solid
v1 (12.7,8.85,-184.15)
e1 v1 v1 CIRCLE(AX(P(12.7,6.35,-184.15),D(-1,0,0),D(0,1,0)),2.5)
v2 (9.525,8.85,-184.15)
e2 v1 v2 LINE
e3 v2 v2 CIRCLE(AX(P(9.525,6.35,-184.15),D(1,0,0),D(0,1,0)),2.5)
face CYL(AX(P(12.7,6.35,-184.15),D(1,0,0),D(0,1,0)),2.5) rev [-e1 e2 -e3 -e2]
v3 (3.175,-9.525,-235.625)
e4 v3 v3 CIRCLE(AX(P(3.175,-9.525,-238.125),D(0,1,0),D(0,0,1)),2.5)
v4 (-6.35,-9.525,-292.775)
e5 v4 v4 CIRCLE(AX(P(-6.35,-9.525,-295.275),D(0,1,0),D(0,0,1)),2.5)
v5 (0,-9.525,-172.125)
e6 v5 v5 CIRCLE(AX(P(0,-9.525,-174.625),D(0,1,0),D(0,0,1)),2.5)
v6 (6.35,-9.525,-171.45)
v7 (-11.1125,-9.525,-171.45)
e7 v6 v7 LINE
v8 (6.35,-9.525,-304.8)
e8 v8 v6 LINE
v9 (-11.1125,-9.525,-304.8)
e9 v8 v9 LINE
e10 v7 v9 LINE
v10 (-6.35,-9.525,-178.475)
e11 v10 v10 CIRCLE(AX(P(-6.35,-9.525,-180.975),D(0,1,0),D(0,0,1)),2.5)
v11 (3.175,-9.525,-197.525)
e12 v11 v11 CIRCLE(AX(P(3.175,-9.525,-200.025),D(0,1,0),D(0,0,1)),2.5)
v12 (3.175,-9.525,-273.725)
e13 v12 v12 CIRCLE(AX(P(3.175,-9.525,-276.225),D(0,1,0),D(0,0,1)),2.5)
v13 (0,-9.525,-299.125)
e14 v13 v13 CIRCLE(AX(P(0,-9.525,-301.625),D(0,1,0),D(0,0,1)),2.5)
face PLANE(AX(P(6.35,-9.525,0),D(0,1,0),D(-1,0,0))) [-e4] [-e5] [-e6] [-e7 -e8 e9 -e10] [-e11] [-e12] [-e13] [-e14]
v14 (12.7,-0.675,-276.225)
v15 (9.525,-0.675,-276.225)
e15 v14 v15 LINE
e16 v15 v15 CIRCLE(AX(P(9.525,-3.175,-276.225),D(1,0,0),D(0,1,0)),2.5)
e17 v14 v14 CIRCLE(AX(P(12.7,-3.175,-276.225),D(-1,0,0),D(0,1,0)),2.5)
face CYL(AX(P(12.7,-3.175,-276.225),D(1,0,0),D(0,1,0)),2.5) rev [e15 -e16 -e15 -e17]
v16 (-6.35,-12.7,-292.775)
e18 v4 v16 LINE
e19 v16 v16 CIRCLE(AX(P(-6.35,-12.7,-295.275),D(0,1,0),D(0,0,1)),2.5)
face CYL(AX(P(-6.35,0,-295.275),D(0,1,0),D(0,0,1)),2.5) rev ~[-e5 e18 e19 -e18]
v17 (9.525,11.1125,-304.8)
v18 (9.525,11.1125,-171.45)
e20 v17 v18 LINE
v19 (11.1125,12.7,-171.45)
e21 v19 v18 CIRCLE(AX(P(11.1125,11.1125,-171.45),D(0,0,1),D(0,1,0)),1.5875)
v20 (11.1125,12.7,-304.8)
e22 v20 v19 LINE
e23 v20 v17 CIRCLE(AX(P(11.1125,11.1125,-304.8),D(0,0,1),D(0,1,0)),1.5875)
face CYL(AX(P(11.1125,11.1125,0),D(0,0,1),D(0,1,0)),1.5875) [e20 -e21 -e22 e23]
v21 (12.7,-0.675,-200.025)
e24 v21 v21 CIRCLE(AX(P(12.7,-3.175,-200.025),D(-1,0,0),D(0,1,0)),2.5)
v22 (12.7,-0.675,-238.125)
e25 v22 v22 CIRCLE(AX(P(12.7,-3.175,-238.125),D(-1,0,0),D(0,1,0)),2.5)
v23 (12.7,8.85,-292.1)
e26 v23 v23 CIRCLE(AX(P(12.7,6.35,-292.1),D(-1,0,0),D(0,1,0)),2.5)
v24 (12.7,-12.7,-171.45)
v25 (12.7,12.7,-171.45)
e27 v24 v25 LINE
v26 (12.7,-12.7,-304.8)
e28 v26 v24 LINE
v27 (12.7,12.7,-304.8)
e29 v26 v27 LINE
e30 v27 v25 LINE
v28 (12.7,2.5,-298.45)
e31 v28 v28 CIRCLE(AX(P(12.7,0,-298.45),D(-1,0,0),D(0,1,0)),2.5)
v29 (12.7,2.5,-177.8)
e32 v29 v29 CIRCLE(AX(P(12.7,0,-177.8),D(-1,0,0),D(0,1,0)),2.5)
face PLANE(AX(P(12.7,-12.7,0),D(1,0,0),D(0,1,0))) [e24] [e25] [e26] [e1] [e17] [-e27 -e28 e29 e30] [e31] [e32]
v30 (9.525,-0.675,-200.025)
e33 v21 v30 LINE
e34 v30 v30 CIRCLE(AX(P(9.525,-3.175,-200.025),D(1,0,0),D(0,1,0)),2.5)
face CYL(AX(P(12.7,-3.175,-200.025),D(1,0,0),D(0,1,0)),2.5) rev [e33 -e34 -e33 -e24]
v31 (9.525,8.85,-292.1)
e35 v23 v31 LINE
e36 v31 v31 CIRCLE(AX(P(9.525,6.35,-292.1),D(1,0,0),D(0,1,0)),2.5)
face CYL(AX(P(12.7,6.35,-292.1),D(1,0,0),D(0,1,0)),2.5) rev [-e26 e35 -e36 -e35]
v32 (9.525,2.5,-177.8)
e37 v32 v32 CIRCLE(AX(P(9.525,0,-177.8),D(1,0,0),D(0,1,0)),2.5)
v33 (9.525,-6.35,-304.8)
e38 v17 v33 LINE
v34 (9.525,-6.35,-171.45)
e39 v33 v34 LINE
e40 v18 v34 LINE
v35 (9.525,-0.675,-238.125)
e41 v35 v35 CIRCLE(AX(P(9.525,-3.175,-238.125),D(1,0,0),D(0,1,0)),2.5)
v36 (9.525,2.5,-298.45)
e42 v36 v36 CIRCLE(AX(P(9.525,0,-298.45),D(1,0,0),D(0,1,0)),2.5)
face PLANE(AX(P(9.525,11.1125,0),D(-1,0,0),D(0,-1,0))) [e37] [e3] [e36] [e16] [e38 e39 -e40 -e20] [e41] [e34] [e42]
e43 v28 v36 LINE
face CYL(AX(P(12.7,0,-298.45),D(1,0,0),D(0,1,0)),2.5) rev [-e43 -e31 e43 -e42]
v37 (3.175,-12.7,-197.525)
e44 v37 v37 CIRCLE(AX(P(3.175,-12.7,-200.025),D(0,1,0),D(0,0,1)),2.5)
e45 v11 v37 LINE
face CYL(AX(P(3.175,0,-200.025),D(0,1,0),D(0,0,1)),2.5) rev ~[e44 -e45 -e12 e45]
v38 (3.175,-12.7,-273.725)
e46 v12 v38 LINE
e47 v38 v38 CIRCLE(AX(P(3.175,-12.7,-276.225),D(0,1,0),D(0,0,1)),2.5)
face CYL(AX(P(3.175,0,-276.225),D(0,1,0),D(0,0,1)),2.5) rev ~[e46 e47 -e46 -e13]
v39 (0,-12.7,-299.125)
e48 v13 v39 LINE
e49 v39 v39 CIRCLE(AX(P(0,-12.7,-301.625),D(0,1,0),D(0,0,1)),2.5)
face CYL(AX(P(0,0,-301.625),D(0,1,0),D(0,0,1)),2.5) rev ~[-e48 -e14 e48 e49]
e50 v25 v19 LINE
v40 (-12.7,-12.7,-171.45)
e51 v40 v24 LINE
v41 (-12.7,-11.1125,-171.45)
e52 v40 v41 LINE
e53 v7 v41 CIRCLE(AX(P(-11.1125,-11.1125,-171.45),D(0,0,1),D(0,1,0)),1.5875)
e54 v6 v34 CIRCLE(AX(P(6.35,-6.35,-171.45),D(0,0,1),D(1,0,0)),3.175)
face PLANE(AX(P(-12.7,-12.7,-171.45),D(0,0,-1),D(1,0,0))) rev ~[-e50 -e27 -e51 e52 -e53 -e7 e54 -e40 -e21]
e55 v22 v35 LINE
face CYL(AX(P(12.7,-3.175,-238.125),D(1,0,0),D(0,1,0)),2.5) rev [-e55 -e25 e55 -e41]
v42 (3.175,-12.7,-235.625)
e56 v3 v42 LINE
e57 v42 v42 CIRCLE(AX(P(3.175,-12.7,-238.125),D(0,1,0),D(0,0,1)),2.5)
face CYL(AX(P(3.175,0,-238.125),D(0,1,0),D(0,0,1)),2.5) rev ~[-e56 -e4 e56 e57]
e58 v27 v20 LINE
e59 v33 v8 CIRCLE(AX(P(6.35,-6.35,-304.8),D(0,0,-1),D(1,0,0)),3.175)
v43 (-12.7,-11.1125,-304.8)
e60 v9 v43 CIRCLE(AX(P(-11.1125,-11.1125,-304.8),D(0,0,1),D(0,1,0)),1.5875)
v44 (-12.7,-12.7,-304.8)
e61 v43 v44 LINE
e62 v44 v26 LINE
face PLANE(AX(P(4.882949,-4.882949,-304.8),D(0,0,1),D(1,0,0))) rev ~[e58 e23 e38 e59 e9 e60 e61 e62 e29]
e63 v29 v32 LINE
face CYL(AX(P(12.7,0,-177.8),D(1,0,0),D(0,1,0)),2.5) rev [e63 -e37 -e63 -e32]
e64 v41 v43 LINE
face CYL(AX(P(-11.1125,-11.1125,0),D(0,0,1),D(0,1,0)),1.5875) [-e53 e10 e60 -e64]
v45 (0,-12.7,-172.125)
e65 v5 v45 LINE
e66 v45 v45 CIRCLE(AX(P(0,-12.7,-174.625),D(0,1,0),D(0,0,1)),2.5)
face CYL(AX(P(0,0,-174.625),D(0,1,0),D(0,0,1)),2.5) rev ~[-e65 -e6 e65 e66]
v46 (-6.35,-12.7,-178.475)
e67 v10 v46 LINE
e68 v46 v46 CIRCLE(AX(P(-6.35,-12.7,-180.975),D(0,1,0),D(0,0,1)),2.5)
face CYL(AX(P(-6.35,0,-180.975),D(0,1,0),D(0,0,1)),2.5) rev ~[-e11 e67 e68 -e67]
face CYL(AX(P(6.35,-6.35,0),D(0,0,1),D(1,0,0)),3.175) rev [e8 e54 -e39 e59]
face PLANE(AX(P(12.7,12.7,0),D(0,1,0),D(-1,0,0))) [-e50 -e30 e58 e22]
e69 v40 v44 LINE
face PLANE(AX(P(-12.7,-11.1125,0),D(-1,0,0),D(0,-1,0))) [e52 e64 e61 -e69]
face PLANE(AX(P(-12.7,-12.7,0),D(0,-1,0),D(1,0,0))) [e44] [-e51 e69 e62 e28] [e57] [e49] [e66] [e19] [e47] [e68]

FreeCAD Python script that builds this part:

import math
import FreeCAD as App
import Part
import Sketcher

V = App.Vector
Q = App.Units.Quantity


def add_polygon(sketch, points):
    """Adds a closed chain of lines whose ends are joined by coincident constraints."""
    first, n = sketch.GeometryCount, len(points)
    for a, b in zip(points, points[1:] + points[:1]):
        sketch.addGeometry(Part.LineSegment(App.Vector(*a, 0), App.Vector(*b, 0)), False)
    for i in range(n):
        sketch.addConstraint(Sketcher.Constraint("Coincident", first + i, 2, first + (i + 1) % n, 1))

doc = App.newDocument("Part")
params = doc.addObject("Spreadsheet::Sheet", "Params")
for row, (alias, value) in enumerate([
    ("sketch1_width", "1 in"),
    ("sketch1_radius", "0.0625 in"),
    ("sketch1_radius2", "0.125 in"),
    ("pad1_length", "24 in"),
    ("sketch2_width", "1 in"),
    ("sketch2_height", "18.75 in"),
    ("pocket1_length", "10 in"),
    ("pocket2_length", "10 in"),
    ("pocket3_length", "10 in"),
], start=1):
    params.set(f"A{row}", alias)
    params.set(f"B{row}", "=" + value)
    params.setAlias(f"B{row}", alias)

body = doc.addObject("PartDesign::Body", "Body")

# Sketch on XY plane
sketch1 = doc.addObject("Sketcher::SketchObject", "Sketch")
body.addObject(sketch1)
sketch1.AttachmentSupport = (doc.XY_Plane, [""])
sketch1.MapMode = "FlatFace"
sketch1.addGeometry([
    Part.LineSegment(V(-12.7, -12.7, 0), V(12.7, -12.7, 0)),  # 0
    Part.LineSegment(V(12.7, -12.7, 0), V(12.7, 12.7, 0)),  # 1
    Part.LineSegment(V(12.7, 12.7, 0), V(11.1, 12.7, 0)),  # 2
    Part.ArcOfCircle(Part.Circle(V(11.1, 11.1, 0), V(0, 0, 1), 1.6), math.radians(90), math.radians(180)),  # 3
    Part.LineSegment(V(9.5, 11.1, 0), V(9.5, -6.3, 0)),  # 4
    Part.ArcOfCircle(Part.Circle(V(6.3, -6.3, 0), V(0, 0, 1), 3.2), math.radians(-90), math.radians(0)),  # 5
    Part.LineSegment(V(6.3, -9.5, 0), V(-11.1, -9.5, 0)),  # 6
    Part.ArcOfCircle(Part.Circle(V(-11.1, -11.1, 0), V(0, 0, 1), 1.6), math.radians(90), math.radians(180)),  # 7
    Part.LineSegment(V(-12.7, -11.1, 0), V(-12.7, -12.7, 0)),  # 8
], False)
sketch1.addConstraint([
    Sketcher.Constraint("Coincident", 0, 2, 1, 1),
    Sketcher.Constraint("Coincident", 1, 2, 2, 1),
    Sketcher.Constraint("Tangent", 2, 2, 3, 1),
    Sketcher.Constraint("Tangent", 3, 2, 4, 1),
    Sketcher.Constraint("Tangent", 4, 2, 5, 2),
    Sketcher.Constraint("Tangent", 5, 1, 6, 1),
    Sketcher.Constraint("Tangent", 6, 2, 7, 1),
    Sketcher.Constraint("Tangent", 7, 2, 8, 1),
    Sketcher.Constraint("Coincident", 8, 2, 0, 1),
    Sketcher.Constraint("Horizontal", 0),
    Sketcher.Constraint("Vertical", 1),
    Sketcher.Constraint("Horizontal", 2),
    Sketcher.Constraint("Vertical", 4),
    Sketcher.Constraint("Horizontal", 6),
    Sketcher.Constraint("Vertical", 8),
    Sketcher.Constraint("Equal", 3, 7),
    Sketcher.Constraint("Symmetric", 3, 3, 7, 3, -1, 1),
    Sketcher.Constraint("Symmetric", 1, 2, 8, 2, -1, 1),
    Sketcher.Constraint("Equal", 0, 1),
    Sketcher.Constraint("DistanceX", 0, 1, 0, 2, Q("1 in")),
    Sketcher.Constraint("Radius", 3, Q("0.0625 in")),
    Sketcher.Constraint("Radius", 5, Q("0.125 in")),
])
sketch1.setExpression("Constraints[19]", "Params.sketch1_width")
sketch1.setExpression("Constraints[20]", "Params.sketch1_radius")
sketch1.setExpression("Constraints[21]", "Params.sketch1_radius2")
pad1 = doc.addObject("PartDesign::Pad", "Pad")
body.addObject(pad1)
pad1.Profile = sketch1
pad1.setExpression("Length", "Params.pad1_length")
pad1.Midplane = True

# Sketch on XZ plane
sketch2 = doc.addObject("Sketcher::SketchObject", "Sketch001")
body.addObject(sketch2)
sketch2.AttachmentSupport = (doc.XZ_Plane, [""])
sketch2.MapMode = "FlatFace"
sketch2.AttachmentOffset = App.Placement(V(0, 0, 0.5 * 25.4), App.Rotation())
add_polygon(sketch2, [(-13, 305), (-13, -171), (13, -171), (13, 305)])  # lines 0-3
sketch2.addConstraint([
    Sketcher.Constraint("Vertical", 0),
    Sketcher.Constraint("Horizontal", 1),
    Sketcher.Constraint("Vertical", 2),
    Sketcher.Constraint("Horizontal", 3),
    Sketcher.Constraint("DistanceX", 1, 1, 1, 2, Q("1 in")),
    Sketcher.Constraint("DistanceY", -1, 1, 2, 2, Q("12 in")),
    Sketcher.Constraint("DistanceY", 0, 2, 0, 1, Q("18.75 in")),
    Sketcher.Constraint("DistanceX", 0, 2, -1, 1, Q("0.5 in")),
])
sketch2.setExpression("Constraints[8]", "Params.sketch2_width")
sketch2.setExpression("Constraints[10]", "Params.sketch2_height")
pocket1 = doc.addObject("PartDesign::Pocket", "Pocket")
body.addObject(pocket1)
pocket1.Profile = sketch2
pocket1.setExpression("Length", "Params.pocket1_length")

# Sketch on XZ plane
sketch3 = doc.addObject("Sketcher::SketchObject", "Sketch002")
body.addObject(sketch3)
sketch3.AttachmentSupport = (doc.XZ_Plane, [""])
sketch3.MapMode = "FlatFace"
sketch3.addGeometry([
    Part.Circle(V(-6.3, -295.3, 0), V(0, 0, 1), 2.5),  # 0
    Part.Circle(V(0, -301.6, 0), V(0, 0, 1), 2.5),  # 1
    Part.Circle(V(3.2, -276.2, 0), V(0, 0, 1), 2.5),  # 2
    Part.Circle(V(3.2, -238.1, 0), V(0, 0, 1), 2.5),  # 3
    Part.Circle(V(3.2, -200, 0), V(0, 0, 1), 2.5),  # 4
    Part.Circle(V(0, -174.6, 0), V(0, 0, 1), 2.5),  # 5
    Part.Circle(V(-6.3, -181, 0), V(0, 0, 1), 2.5),  # 6
], False)
sketch3.addConstraint([
    Sketcher.Constraint("Equal", 0, 1),
    Sketcher.Constraint("Equal", 1, 2),
    Sketcher.Constraint("Equal", 2, 3),
    Sketcher.Constraint("Equal", 3, 4),
    Sketcher.Constraint("Equal", 4, 5),
    Sketcher.Constraint("Equal", 5, 6),
    Sketcher.Constraint("PointOnObject", 1, 3, -2),
    Sketcher.Constraint("PointOnObject", 5, 3, -2),
    Sketcher.Constraint("Vertical", 2, 3, 3, 3),
    Sketcher.Constraint("Vertical", 3, 3, 4, 3),
    Sketcher.Constraint("Vertical", 0, 3, 6, 3),
    Sketcher.Constraint("DistanceY", 1, 3, 2, 3, Q("1 in")),
    Sketcher.Constraint("DistanceY", 2, 3, 4, 3, Q("3 in")),
    Sketcher.Constraint("DistanceY", 4, 3, 5, 3, Q("1 in")),
    Sketcher.Constraint("DistanceY", 2, 3, 3, 3, Q("1.5 in")),
    Sketcher.Constraint("DistanceY", 0, 3, 6, 3, Q("4.5 in")),
    Sketcher.Constraint("Diameter", 0, Q("5 mm")),
    Sketcher.Constraint("DistanceX", 0, 3, -1, 1, Q("0.25 in")),
    Sketcher.Constraint("DistanceY", 1, 3, 0, 3, Q("0.25 in")),
    Sketcher.Constraint("DistanceY", 0, 3, -1, 1, Q("11.625 in")),
    Sketcher.Constraint("DistanceX", -1, 1, 2, 3, Q("0.125 in")),
])
pocket2 = doc.addObject("PartDesign::Pocket", "Pocket001")
body.addObject(pocket2)
pocket2.Profile = sketch3
pocket2.setExpression("Length", "Params.pocket2_length")
pocket2.Reversed = True

# Sketch on YZ plane
sketch4 = doc.addObject("Sketcher::SketchObject", "Sketch003")
body.addObject(sketch4)
sketch4.AttachmentSupport = (doc.YZ_Plane, [""])
sketch4.MapMode = "FlatFace"
sketch4.AttachmentOffset = App.Placement(V(0, 0, 0.5 * 25.4), App.Rotation())
sketch4.addGeometry([
    Part.Circle(V(6.3, -184.2, 0), V(0, 0, 1), 2.5),  # 0
    Part.Circle(V(0, -177.8, 0), V(0, 0, 1), 2.5),  # 1
    Part.Circle(V(-3.2, -200, 0), V(0, 0, 1), 2.5),  # 2
    Part.Circle(V(-3.2, -238.1, 0), V(0, 0, 1), 2.5),  # 3
    Part.Circle(V(-3.2, -276.2, 0), V(0, 0, 1), 2.5),  # 4
    Part.Circle(V(0, -298.4, 0), V(0, 0, 1), 2.5),  # 5
    Part.Circle(V(6.3, -292.1, 0), V(0, 0, 1), 2.5),  # 6
], False)
sketch4.addConstraint([
    Sketcher.Constraint("Equal", 0, 1),
    Sketcher.Constraint("Equal", 1, 2),
    Sketcher.Constraint("Equal", 2, 3),
    Sketcher.Constraint("Equal", 3, 4),
    Sketcher.Constraint("Equal", 4, 5),
    Sketcher.Constraint("Equal", 5, 6),
    Sketcher.Constraint("PointOnObject", 1, 3, -2),
    Sketcher.Constraint("PointOnObject", 5, 3, -2),
    Sketcher.Constraint("Vertical", 2, 3, 3, 3),
    Sketcher.Constraint("Vertical", 3, 3, 4, 3),
    Sketcher.Constraint("Vertical", 0, 3, 6, 3),
    Sketcher.Constraint("DistanceY", 1, 3, -1, 1, Q("7 in")),
    Sketcher.Constraint("DistanceY", 4, 3, 2, 3, Q("3 in")),
    Sketcher.Constraint("DistanceY", 6, 3, -1, 1, Q("11.5 in")),
    Sketcher.Constraint("DistanceY", 3, 3, 2, 3, Q("1.5 in")),
    Sketcher.Constraint("DistanceY", 5, 3, 0, 3, Q("4.5 in")),
    Sketcher.Constraint("Diameter", 0, Q("5 mm")),
    Sketcher.Constraint("DistanceX", -1, 1, 0, 3, Q("0.25 in")),
    Sketcher.Constraint("DistanceY", 0, 3, -1, 1, Q("7.25 in")),
    Sketcher.Constraint("DistanceX", 2, 3, -1, 1, Q("0.125 in")),
    Sketcher.Constraint("DistanceY", 2, 3, -1, 1, Q("7.875 in")),
])
pocket3 = doc.addObject("PartDesign::Pocket", "Pocket002")
body.addObject(pocket3)
pocket3.Profile = sketch4
pocket3.setExpression("Length", "Params.pocket3_length")

doc.recompute()
